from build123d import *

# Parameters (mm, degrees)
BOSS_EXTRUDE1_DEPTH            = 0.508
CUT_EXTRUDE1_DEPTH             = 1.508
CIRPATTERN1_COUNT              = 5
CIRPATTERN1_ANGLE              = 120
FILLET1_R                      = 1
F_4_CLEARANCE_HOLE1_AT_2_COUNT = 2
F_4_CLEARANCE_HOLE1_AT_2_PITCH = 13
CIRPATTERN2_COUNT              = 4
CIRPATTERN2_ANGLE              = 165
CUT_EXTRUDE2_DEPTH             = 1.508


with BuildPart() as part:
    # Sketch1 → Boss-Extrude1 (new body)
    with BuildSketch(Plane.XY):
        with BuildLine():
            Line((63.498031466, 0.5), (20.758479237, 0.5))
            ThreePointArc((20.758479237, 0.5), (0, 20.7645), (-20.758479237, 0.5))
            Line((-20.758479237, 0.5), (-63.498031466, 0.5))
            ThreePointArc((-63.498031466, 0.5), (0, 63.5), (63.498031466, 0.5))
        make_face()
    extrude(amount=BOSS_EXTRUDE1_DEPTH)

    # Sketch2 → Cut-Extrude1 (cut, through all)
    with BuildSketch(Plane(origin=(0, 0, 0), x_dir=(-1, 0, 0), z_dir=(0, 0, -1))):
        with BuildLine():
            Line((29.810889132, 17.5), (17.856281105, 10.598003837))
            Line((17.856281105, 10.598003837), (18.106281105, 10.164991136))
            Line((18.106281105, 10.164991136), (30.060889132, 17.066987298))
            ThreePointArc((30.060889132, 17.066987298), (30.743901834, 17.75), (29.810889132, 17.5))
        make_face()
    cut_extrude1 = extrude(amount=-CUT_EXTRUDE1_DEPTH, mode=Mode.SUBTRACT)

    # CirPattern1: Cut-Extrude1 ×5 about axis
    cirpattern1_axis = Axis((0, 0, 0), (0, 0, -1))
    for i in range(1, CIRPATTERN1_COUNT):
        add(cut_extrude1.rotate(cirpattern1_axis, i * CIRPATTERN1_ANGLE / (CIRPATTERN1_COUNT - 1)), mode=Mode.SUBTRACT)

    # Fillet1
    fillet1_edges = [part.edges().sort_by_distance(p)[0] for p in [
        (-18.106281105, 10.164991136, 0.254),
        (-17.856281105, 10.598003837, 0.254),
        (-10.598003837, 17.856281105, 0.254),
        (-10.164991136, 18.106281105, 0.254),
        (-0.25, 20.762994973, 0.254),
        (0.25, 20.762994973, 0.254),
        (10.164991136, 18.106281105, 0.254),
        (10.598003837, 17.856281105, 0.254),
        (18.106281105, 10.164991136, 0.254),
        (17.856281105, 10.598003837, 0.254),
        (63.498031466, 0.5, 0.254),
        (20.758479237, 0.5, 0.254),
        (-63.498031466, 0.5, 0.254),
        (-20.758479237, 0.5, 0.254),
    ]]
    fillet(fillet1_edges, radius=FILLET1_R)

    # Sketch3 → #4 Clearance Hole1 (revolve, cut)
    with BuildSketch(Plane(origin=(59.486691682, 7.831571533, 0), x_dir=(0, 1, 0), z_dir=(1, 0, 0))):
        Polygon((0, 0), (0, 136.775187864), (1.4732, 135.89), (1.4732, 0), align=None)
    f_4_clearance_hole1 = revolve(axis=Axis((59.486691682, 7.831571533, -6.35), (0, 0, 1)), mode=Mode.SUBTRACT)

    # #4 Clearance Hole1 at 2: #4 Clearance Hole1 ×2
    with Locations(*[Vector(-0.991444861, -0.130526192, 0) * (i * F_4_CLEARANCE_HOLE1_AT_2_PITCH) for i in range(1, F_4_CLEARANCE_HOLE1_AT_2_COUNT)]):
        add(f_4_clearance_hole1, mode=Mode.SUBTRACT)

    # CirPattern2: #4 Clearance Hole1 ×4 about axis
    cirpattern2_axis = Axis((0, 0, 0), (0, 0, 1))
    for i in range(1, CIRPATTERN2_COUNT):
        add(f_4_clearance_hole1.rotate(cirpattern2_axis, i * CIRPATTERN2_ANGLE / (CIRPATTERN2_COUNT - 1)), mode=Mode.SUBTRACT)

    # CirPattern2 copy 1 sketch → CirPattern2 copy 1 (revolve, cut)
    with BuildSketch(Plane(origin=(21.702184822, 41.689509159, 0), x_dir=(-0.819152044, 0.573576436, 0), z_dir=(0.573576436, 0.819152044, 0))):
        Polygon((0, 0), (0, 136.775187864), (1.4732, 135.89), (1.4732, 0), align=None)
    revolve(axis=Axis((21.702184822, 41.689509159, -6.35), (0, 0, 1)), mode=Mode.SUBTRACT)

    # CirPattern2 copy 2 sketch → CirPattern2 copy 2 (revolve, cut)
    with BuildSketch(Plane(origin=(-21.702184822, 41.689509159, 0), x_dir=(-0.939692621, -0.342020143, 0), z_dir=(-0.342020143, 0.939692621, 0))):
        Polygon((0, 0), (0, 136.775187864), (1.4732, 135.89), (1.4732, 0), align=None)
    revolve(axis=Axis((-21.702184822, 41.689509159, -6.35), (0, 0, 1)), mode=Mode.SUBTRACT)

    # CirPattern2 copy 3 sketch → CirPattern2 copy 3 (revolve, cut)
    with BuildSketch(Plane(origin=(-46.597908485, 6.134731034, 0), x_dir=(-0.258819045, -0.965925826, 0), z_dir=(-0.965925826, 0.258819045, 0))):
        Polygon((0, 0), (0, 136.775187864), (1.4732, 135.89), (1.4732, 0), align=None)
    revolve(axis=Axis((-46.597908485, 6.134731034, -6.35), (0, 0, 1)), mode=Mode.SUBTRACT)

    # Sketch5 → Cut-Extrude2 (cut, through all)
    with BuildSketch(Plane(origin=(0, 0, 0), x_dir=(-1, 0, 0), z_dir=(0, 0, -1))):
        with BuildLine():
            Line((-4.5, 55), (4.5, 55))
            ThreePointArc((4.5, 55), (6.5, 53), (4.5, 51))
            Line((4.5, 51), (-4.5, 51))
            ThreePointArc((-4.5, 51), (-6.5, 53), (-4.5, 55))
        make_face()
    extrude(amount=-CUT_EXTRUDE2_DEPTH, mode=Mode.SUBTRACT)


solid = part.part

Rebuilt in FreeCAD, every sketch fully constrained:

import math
import FreeCAD as App
import Part
import Sketcher
Q = App.Units.Quantity


def edges_at(feature, points):
    """Names of the edges that pass closest to the given points."""
    edges = feature.Shape.Edges
    near = lambda p: min(range(len(edges)), key=lambda i: edges[i].distToShape(Part.Vertex(*p))[0])
    return sorted({f"Edge{near(p) + 1}" for p in points})


def add_polygon(sketch, points):
    """Adds a closed chain of lines whose ends are joined by coincident constraints."""
    first, n = sketch.GeometryCount, len(points)
    for a, b in zip(points, points[1:] + points[:1]):
        sketch.addGeometry(Part.LineSegment(App.Vector(*a, 0), App.Vector(*b, 0)), False)
    for i in range(n):
        sketch.addConstraint(Sketcher.Constraint("Coincident", first + i, 2, first + (i + 1) % n, 1))

doc = App.newDocument("Part")
body = doc.addObject("PartDesign::Body", "Body")

# Sketch on XY plane
sketch1 = doc.addObject("Sketcher::SketchObject", "Sketch")
body.addObject(sketch1)
sketch1.AttachmentSupport = (doc.XY_Plane, [""])
sketch1.MapMode = "FlatFace"
sketch1.addGeometry(Part.LineSegment(App.Vector(21, 0, 0), App.Vector(63, 0, 0)), False)
sketch1.addGeometry(Part.ArcOfCircle(Part.Circle(App.Vector(0, 0, 0), App.Vector(0, 0, 1), 64), math.radians(0), math.radians(180)), False)
sketch1.addGeometry(Part.LineSegment(App.Vector(-63, 0, 0), App.Vector(-21, 0, 0)), False)
sketch1.addGeometry(Part.ArcOfCircle(Part.Circle(App.Vector(0, 0, 0), App.Vector(0, 0, 1), 21), math.radians(1), math.radians(179)), False)
sketch1.addConstraint(Sketcher.Constraint("Coincident", 0, 2, 1, 1))
sketch1.addConstraint(Sketcher.Constraint("Coincident", 1, 2, 2, 1))
sketch1.addConstraint(Sketcher.Constraint("Coincident", 2, 2, 3, 2))
sketch1.addConstraint(Sketcher.Constraint("Coincident", 3, 1, 0, 1))
sketch1.addConstraint(Sketcher.Constraint("Horizontal", 0))
sketch1.addConstraint(Sketcher.Constraint("Horizontal", 2))
sketch1.addConstraint(Sketcher.Constraint("Coincident", 1, 3, -1, 1))
sketch1.addConstraint(Sketcher.Constraint("Coincident", 3, 3, -1, 1))
sketch1.addConstraint(Sketcher.Constraint("Horizontal", 0, 2, 1, 2))
sketch1.addConstraint(Sketcher.Constraint("Radius", 1, Q("2.5 in")))
sketch1.addConstraint(Sketcher.Constraint("Radius", 3, Q("0.8175 in")))
sketch1.addConstraint(Sketcher.Constraint("DistanceY", -1, 1, 0, 2, 0.5))
pad1 = doc.addObject("PartDesign::Pad", "Pad")
body.addObject(pad1)
pad1.Profile = sketch1
pad1.Length = Q("0.02 in")

# Sketch on XY plane
sketch2 = doc.addObject("Sketcher::SketchObject", "Sketch001")
body.addObject(sketch2)
sketch2.AttachmentSupport = (doc.XY_Plane, [""])
sketch2.MapMode = "FlatFace"
sketch2.addGeometry(Part.LineSegment(App.Vector(-29.81, 17.5, 0), App.Vector(-17.86, 10.6, 0)), False)
sketch2.addGeometry(Part.LineSegment(App.Vector(-17.86, 10.6, 0), App.Vector(-18.11, 10.16, 0)), False)
sketch2.addGeometry(Part.LineSegment(App.Vector(-18.11, 10.16, 0), App.Vector(-30.06, 17.07, 0)), False)
sketch2.addGeometry(Part.ArcOfCircle(Part.Circle(App.Vector(-30.31, 17.5, 0), App.Vector(0, 0, 1), 0.5), math.radians(0), math.radians(300)), False)
sketch2.addConstraint(Sketcher.Constraint("Coincident", 0, 2, 1, 1))
sketch2.addConstraint(Sketcher.Constraint("Coincident", 1, 2, 2, 1))
sketch2.addConstraint(Sketcher.Constraint("Coincident", 2, 2, 3, 2))
sketch2.addConstraint(Sketcher.Constraint("Coincident", 3, 1, 0, 1))
sketch2.addConstraint(Sketcher.Constraint("Perpendicular", 0, 1))
sketch2.addConstraint(Sketcher.Constraint("Perpendicular", 1, 2))
sketch2.addConstraint(Sketcher.Constraint("Equal", 0, 2))
sketch2.addConstraint(Sketcher.Constraint("Angle", 0, Q("-30 deg")))
sketch2.addConstraint(Sketcher.Constraint("Radius", 3, 0.5))
sketch2.addConstraint(Sketcher.Constraint("Distance", 1, 0.5))
sketch2.addConstraint(Sketcher.Constraint("DistanceY", -1, 1, 3, 3, 17.5))
sketch2.addConstraint(Sketcher.Constraint("DistanceX", 3, 3, -1, 1, 30.310889))
sketch2.addConstraint(Sketcher.Constraint("DistanceX", 0, 2, -1, 1, 17.856281))
pocket1 = doc.addObject("PartDesign::Pocket", "Pocket")
body.addObject(pocket1)
pocket1.Profile = sketch2
pocket1.Type = "ThroughAll"
pocket1.Reversed = True
doc.recompute()

polarpattern = doc.addObject("PartDesign::PolarPattern", "PolarPattern")
body.addObject(polarpattern)
polarpattern.Originals = [pocket1]
polarpattern.Axis = (doc.Z_Axis, [""])
polarpattern.Angle = 120
polarpattern.Occurrences = 5
polarpattern.Reversed = True
body.Tip = polarpattern
doc.recompute()

fillet = doc.addObject("PartDesign::Fillet", "Fillet")
body.addObject(fillet)
fillet.Base = (polarpattern, edges_at(polarpattern, [
    (-18.106, 10.165, 0.254),
    (-17.856, 10.598, 0.254),
    (-10.598, 17.856, 0.254),
    (-10.165, 18.106, 0.254),
    (-0.25, 20.763, 0.254),
    (0.25, 20.763, 0.254),
    (10.165, 18.106, 0.254),
    (10.598, 17.856, 0.254),
    (18.106, 10.165, 0.254),
    (17.856, 10.598, 0.254),
    (63.498, 0.5, 0.254),
    (20.758, 0.5, 0.254),
    (-63.498, 0.5, 0.254),
    (-20.758, 0.5, 0.254),
]))
fillet.Radius = 1

# Sketch on YZ plane
sketch3 = doc.addObject("Sketcher::SketchObject", "Sketch002")
body.addObject(sketch3)
sketch3.AttachmentSupport = (doc.YZ_Plane, [""])
sketch3.MapMode = "FlatFace"
sketch3.AttachmentOffset = App.Placement(App.Vector(0, 0, 59.486692), App.Rotation())
add_polygon(sketch3, [(7.8, 136.8), (7.8, 0), (9.3, 0), (9.3, 135.9)])  # lines 0-3
sketch3.addGeometry(Part.LineSegment(App.Vector(7.8, 0, 0), App.Vector(7.8, 136.8, 0)), True)  # axis
sketch3.addConstraint(Sketcher.Constraint("Vertical", 0))
sketch3.addConstraint(Sketcher.Constraint("Horizontal", 1))
sketch3.addConstraint(Sketcher.Constraint("Vertical", 2))
sketch3.addConstraint(Sketcher.Constraint("Vertical", 4))
sketch3.addConstraint(Sketcher.Constraint("Coincident", 4, 1, 0, 2))
sketch3.addConstraint(Sketcher.Constraint("PointOnObject", 0, 2, -1))
sketch3.addConstraint(Sketcher.Constraint("Equal", 0, 4))
sketch3.addConstraint(Sketcher.Constraint("Angle", 3, Q("149 deg")))
sketch3.addConstraint(Sketcher.Constraint("DistanceY", 2, 1, 2, 2, Q("5.35 in")))
sketch3.addConstraint(Sketcher.Constraint("DistanceX", 1, 1, 1, 2, Q("0.058 in")))
sketch3.addConstraint(Sketcher.Constraint("DistanceX", -1, 1, 0, 2, 7.831572))
groove = doc.addObject("PartDesign::Groove", "Groove")
body.addObject(groove)
groove.Profile = sketch3
groove.ReferenceAxis = (sketch3, ["Axis0"])
groove.Angle = 360
doc.recompute()

datumline = doc.addObject("PartDesign::Line", "DatumLine")
body.addObject(datumline)
datumline.Placement = App.Placement(App.Vector(0, 0, 0), App.Rotation(App.Vector(0, 0, 1), App.Vector(-0.991444861, -0.130526192, 0)))
linearpattern = doc.addObject("PartDesign::LinearPattern", "LinearPattern")
body.addObject(linearpattern)
linearpattern.Originals = [groove]
linearpattern.Direction = (datumline, [""])
linearpattern.Mode = "offset"
linearpattern.Offset = 13
linearpattern.Occurrences = 2
body.Tip = linearpattern
doc.recompute()

polarpattern2 = doc.addObject("PartDesign::PolarPattern", "PolarPattern001")
body.addObject(polarpattern2)
polarpattern2.Originals = [groove]
polarpattern2.Axis = (doc.Z_Axis, [""])
polarpattern2.Angle = 165
polarpattern2.Occurrences = 4
body.Tip = polarpattern2

# Sketch on an angled plane
sketch4 = doc.addObject("Sketcher::SketchObject", "Sketch003")
body.addObject(sketch4)
sketch4.Placement = App.Placement(App.Vector(21.702185, 41.689509, 0), App.Rotation(App.Vector(-0.819152044, 0.573576436, 0), App.Vector(0, 0, 0.999999999), App.Vector(0.573576436, 0.819152044, 0), "ZXY"))
add_polygon(sketch4, [(0, 136.8), (0, 0), (1.5, 0), (1.5, 135.9)])  # lines 0-3
sketch4.addConstraint(Sketcher.Constraint("Vertical", 0))
sketch4.addConstraint(Sketcher.Constraint("Horizontal", 1))
sketch4.addConstraint(Sketcher.Constraint("Vertical", 2))
sketch4.addConstraint(Sketcher.Constraint("Coincident", 0, 2, -1, 1))
sketch4.addConstraint(Sketcher.Constraint("Angle", 3, Q("149 deg")))
sketch4.addConstraint(Sketcher.Constraint("DistanceY", 2, 1, 2, 2, Q("5.35 in")))
sketch4.addConstraint(Sketcher.Constraint("DistanceX", 1, 1, 1, 2, Q("0.058 in")))
groove2 = doc.addObject("PartDesign::Groove", "Groove001")
body.addObject(groove2)
groove2.Profile = sketch4
groove2.ReferenceAxis = (sketch4, ["V_Axis"])
groove2.Angle = 360

# Sketch on an angled plane
sketch5 = doc.addObject("Sketcher::SketchObject", "Sketch004")
body.addObject(sketch5)
sketch5.Placement = App.Placement(App.Vector(-21.702185, 41.689509, 0), App.Rotation(App.Vector(-0.939692621, -0.342020143, 0), App.Vector(0, 0, 1), App.Vector(-0.342020143, 0.939692621, 0), "ZXY"))
add_polygon(sketch5, [(0, 136.8), (0, 0), (1.5, 0), (1.5, 135.9)])  # lines 0-3
sketch5.addConstraint(Sketcher.Constraint("Vertical", 0))
sketch5.addConstraint(Sketcher.Constraint("Horizontal", 1))
sketch5.addConstraint(Sketcher.Constraint("Vertical", 2))
sketch5.addConstraint(Sketcher.Constraint("Coincident", 0, 2, -1, 1))
sketch5.addConstraint(Sketcher.Constraint("Angle", 3, Q("149 deg")))
sketch5.addConstraint(Sketcher.Constraint("DistanceY", 2, 1, 2, 2, Q("5.35 in")))
sketch5.addConstraint(Sketcher.Constraint("DistanceX", 1, 1, 1, 2, Q("0.058 in")))
groove3 = doc.addObject("PartDesign::Groove", "Groove002")
body.addObject(groove3)
groove3.Profile = sketch5
groove3.ReferenceAxis = (sketch5, ["V_Axis"])
groove3.Angle = 360

# Sketch on an angled plane
sketch6 = doc.addObject("Sketcher::SketchObject", "Sketch005")
body.addObject(sketch6)
sketch6.Placement = App.Placement(App.Vector(-46.597908, 6.134731, 0), App.Rotation(App.Vector(-0.258819045, -0.965925826, 0), App.Vector(0, 0, 0.999999999), App.Vector(-0.965925826, 0.258819045, 0), "ZXY"))
add_polygon(sketch6, [(0, 136.8), (0, 0), (1.5, 0), (1.5, 135.9)])  # lines 0-3
sketch6.addConstraint(Sketcher.Constraint("Vertical", 0))
sketch6.addConstraint(Sketcher.Constraint("Horizontal", 1))
sketch6.addConstraint(Sketcher.Constraint("Vertical", 2))
sketch6.addConstraint(Sketcher.Constraint("Coincident", 0, 2, -1, 1))
sketch6.addConstraint(Sketcher.Constraint("Angle", 3, Q("149 deg")))
sketch6.addConstraint(Sketcher.Constraint("DistanceY", 2, 1, 2, 2, Q("5.35 in")))
sketch6.addConstraint(Sketcher.Constraint("DistanceX", 1, 1, 1, 2, Q("0.058 in")))
groove4 = doc.addObject("PartDesign::Groove", "Groove003")
body.addObject(groove4)
groove4.Profile = sketch6
groove4.ReferenceAxis = (sketch6, ["V_Axis"])
groove4.Angle = 360

# Sketch on XY plane
sketch7 = doc.addObject("Sketcher::SketchObject", "Sketch006")
body.addObject(sketch7)
sketch7.AttachmentSupport = (doc.XY_Plane, [""])
sketch7.MapMode = "FlatFace"
sketch7.addGeometry(Part.LineSegment(App.Vector(-4.5, 55, 0), App.Vector(4.5, 55, 0)), False)
sketch7.addGeometry(Part.ArcOfCircle(Part.Circle(App.Vector(4.5, 53, 0), App.Vector(0, 0, 1), 2), math.radians(-90), math.radians(90)), False)
sketch7.addGeometry(Part.LineSegment(App.Vector(4.5, 51, 0), App.Vector(-4.5, 51, 0)), False)
sketch7.addGeometry(Part.ArcOfCircle(Part.Circle(App.Vector(-4.5, 53, 0), App.Vector(0, 0, 1), 2), math.radians(90), math.radians(270)), False)
sketch7.addConstraint(Sketcher.Constraint("Tangent", 0, 2, 1, 2))
sketch7.addConstraint(Sketcher.Constraint("Tangent", 1, 1, 2, 1))
sketch7.addConstraint(Sketcher.Constraint("Tangent", 2, 2, 3, 2))
sketch7.addConstraint(Sketcher.Constraint("Tangent", 3, 1, 0, 1))
sketch7.addConstraint(Sketcher.Constraint("Horizontal", 0))
sketch7.addConstraint(Sketcher.Constraint("Horizontal", 2))
sketch7.addConstraint(Sketcher.Constraint("Radius", 1, 2.0))
sketch7.addConstraint(Sketcher.Constraint("DistanceX", 0, 1, 0, 2, 9.0))
sketch7.addConstraint(Sketcher.Constraint("DistanceX", -1, 1, 1, 3, 4.5))
sketch7.addConstraint(Sketcher.Constraint("DistanceY", -1, 1, 1, 3, 53.0))
pocket2 = doc.addObject("PartDesign::Pocket", "Pocket001")
body.addObject(pocket2)
pocket2.Profile = sketch7
pocket2.Type = "ThroughAll"
pocket2.Reversed = True

doc.recompute()
